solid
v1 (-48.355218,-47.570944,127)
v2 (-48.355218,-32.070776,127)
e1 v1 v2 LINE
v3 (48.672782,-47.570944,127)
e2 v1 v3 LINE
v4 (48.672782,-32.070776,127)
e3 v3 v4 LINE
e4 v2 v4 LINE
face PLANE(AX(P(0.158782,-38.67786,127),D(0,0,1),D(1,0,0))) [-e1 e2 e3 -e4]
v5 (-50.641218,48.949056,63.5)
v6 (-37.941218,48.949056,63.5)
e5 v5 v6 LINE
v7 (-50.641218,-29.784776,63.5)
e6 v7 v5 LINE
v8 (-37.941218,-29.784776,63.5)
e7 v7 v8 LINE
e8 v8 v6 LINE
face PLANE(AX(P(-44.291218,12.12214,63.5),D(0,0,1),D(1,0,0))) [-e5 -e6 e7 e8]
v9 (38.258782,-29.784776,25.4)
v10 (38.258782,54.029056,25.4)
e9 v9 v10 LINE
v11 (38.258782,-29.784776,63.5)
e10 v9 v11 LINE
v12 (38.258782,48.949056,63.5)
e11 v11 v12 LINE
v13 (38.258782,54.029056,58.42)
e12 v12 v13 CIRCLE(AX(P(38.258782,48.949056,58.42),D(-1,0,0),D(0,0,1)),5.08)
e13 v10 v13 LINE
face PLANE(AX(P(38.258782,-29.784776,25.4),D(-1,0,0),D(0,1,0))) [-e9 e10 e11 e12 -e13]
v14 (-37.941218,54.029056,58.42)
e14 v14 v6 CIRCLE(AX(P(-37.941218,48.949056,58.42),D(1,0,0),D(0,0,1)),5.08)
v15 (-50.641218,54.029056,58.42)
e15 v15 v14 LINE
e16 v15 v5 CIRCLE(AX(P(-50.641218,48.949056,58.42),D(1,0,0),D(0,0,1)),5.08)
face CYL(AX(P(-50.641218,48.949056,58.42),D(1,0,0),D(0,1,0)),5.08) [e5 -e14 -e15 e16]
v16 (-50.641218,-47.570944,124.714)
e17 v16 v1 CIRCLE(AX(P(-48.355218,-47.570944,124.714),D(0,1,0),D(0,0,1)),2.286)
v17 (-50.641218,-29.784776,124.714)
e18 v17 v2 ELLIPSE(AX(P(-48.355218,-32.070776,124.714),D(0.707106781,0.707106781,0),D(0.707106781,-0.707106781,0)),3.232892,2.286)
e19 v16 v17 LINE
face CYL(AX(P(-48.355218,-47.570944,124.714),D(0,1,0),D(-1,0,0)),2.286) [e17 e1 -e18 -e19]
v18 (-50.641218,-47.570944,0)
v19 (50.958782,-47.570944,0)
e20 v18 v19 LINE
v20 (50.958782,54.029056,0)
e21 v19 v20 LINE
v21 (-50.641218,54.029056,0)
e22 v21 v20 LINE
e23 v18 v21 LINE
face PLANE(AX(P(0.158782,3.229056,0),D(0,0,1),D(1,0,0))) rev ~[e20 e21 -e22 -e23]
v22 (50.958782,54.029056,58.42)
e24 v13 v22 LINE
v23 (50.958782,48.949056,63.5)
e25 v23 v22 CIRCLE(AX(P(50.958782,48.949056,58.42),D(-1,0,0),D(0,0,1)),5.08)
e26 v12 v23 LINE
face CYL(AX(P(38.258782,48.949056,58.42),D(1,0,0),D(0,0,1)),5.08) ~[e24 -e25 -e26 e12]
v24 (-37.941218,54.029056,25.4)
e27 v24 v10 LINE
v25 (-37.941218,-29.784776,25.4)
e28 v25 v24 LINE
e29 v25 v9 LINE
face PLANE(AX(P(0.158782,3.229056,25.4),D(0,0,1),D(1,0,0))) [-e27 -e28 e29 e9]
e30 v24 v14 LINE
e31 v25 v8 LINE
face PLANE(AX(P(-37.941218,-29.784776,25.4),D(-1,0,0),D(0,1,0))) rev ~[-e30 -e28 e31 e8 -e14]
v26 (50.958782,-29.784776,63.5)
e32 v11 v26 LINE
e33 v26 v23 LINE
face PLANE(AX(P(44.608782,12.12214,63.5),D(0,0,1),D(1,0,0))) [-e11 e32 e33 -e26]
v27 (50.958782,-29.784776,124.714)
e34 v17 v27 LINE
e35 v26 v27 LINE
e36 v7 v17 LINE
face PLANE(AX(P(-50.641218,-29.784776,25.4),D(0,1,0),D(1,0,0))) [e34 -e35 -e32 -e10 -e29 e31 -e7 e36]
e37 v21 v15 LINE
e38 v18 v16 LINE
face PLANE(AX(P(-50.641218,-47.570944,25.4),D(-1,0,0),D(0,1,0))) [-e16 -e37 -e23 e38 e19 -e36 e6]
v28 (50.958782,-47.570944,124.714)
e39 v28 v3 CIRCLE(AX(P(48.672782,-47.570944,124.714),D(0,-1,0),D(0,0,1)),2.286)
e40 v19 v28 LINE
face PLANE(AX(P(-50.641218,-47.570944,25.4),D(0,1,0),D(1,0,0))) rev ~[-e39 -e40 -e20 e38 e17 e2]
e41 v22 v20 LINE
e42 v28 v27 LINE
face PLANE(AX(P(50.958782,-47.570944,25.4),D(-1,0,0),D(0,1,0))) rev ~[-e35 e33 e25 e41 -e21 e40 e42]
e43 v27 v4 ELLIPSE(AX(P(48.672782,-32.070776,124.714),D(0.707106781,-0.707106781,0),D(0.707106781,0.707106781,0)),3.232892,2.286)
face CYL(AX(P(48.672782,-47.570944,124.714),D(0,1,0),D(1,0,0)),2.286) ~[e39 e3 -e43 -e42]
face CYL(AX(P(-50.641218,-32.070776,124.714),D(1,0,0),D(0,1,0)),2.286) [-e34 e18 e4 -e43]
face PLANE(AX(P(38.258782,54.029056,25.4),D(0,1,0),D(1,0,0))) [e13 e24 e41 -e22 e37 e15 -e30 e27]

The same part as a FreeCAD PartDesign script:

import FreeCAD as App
import Part
import Sketcher
from FreeCAD import Vector
Q = App.Units.Quantity


def edges_at(feature, points):
    """Names of the edges that pass closest to the given points."""
    edges = feature.Shape.Edges
    near = lambda p: min(range(len(edges)), key=lambda i: edges[i].distToShape(Part.Vertex(*p))[0])
    return sorted({f"Edge{near(p) + 1}" for p in points})


def add_polygon(sketch, points):
    """Adds a closed chain of lines whose ends are joined by coincident constraints."""
    first, n = sketch.GeometryCount, len(points)
    for a, b in zip(points, points[1:] + points[:1]):
        sketch.addGeometry(Part.LineSegment(App.Vector(*a, 0), App.Vector(*b, 0)), False)
    for i in range(n):
        sketch.addConstraint(Sketcher.Constraint("Coincident", first + i, 2, first + (i + 1) % n, 1))

doc = App.newDocument("Part")
body = doc.addObject("PartDesign::Body", "Body")

# Sketch on XY plane
sketch1 = body.newObject("Sketcher::SketchObject", "Sketch")
sketch1.AttachmentSupport = (doc.getObject("XY_Plane"), [""])
sketch1.MapMode = "FlatFace"
add_polygon(sketch1, [(-51, 54), (-51, -48), (51, -48), (51, 54)])  # lines 0-3
sketch1.addConstraint([
    Sketcher.Constraint("Vertical", 0),
    Sketcher.Constraint("Horizontal", 1),
    Sketcher.Constraint("Vertical", 2),
    Sketcher.Constraint("Horizontal", 3),
    Sketcher.Constraint("Equal", 3, 0),
    Sketcher.Constraint("DistanceX", 1, 1, 1, 2, Q("4 in")),
    Sketcher.Constraint("DistanceX", 0, 2, -1, 1, 50.641218),
    Sketcher.Constraint("DistanceY", 0, 2, -1, 1, 47.570944),
])
pad1 = body.newObject("PartDesign::Pad", "Pad")
pad1.Profile = sketch1
pad1.Length = Q("1 in")

# Sketch on XY plane
sketch2 = body.newObject("Sketcher::SketchObject", "Sketch001")
sketch2.AttachmentSupport = (doc.getObject("XY_Plane"), [""])
sketch2.MapMode = "FlatFace"
sketch2.AttachmentOffset = App.Placement(Vector(0, 0, 1 * 25.4), App.Rotation())
add_polygon(sketch2, [(-51, -30), (-51, -48), (51, -48), (51, -30)])  # lines 0-3
sketch2.addConstraint([
    Sketcher.Constraint("Vertical", 0),
    Sketcher.Constraint("Horizontal", 1),
    Sketcher.Constraint("Vertical", 2),
    Sketcher.Constraint("Horizontal", 3),
    Sketcher.Constraint("DistanceX", 1, 1, 1, 2, Q("4 in")),
    Sketcher.Constraint("DistanceY", 0, 2, 0, 1, 17.786168),
    Sketcher.Constraint("DistanceX", 0, 2, -1, 1, 50.641218),
    Sketcher.Constraint("DistanceY", 0, 2, -1, 1, 47.570944),
])
pad2 = body.newObject("PartDesign::Pad", "Pad001")
pad2.Profile = sketch2
pad2.Length = Q("4 in")

# Sketch on XY plane
sketch3 = body.newObject("Sketcher::SketchObject", "Sketch002")
sketch3.AttachmentSupport = (doc.getObject("XY_Plane"), [""])
sketch3.MapMode = "FlatFace"
sketch3.AttachmentOffset = App.Placement(Vector(0, 0, 1 * 25.4), App.Rotation())
add_polygon(sketch3, [(38, 54), (38, -30), (51, -30), (51, 54)])  # lines 0-3
add_polygon(sketch3, [(-51, 54), (-51, -30), (-38, -30), (-38, 54)])  # lines 4-7
sketch3.addConstraint([
    Sketcher.Constraint("Vertical", 0),
    Sketcher.Constraint("Horizontal", 1),
    Sketcher.Constraint("Vertical", 2),
    Sketcher.Constraint("Horizontal", 3),
    Sketcher.Constraint("Vertical", 4),
    Sketcher.Constraint("Horizontal", 5),
    Sketcher.Constraint("Vertical", 6),
    Sketcher.Constraint("Horizontal", 7),
    Sketcher.Constraint("Horizontal", 1, 2, 4, 2),
    Sketcher.Constraint("Horizontal", 3, 2, 6, 2),
    Sketcher.Constraint("Equal", 3, 5),
    Sketcher.Constraint("DistanceX", 1, 1, 1, 2, Q("0.5 in")),
    Sketcher.Constraint("DistanceX", 4, 2, 1, 2, Q("4 in")),
    Sketcher.Constraint("DistanceY", 0, 2, 0, 1, 83.813832),
    Sketcher.Constraint("DistanceX", -1, 1, 0, 2, 38.258782),
    Sketcher.Constraint("DistanceY", 0, 2, -1, 1, 29.784776),
])
pad3 = body.newObject("PartDesign::Pad", "Pad002")
pad3.Profile = sketch3
pad3.Length = Q("1.5 in")
doc.recompute()

fillet = body.newObject("PartDesign::Fillet", "Fillet")
fillet.Base = (pad3, edges_at(pad3, [(44.609, 54.029, 63.5)]))
fillet.Radius = Q("0.2 in")
doc.recompute()

fillet2 = body.newObject("PartDesign::Fillet", "Fillet001")
fillet2.Base = (fillet, edges_at(fillet, [(-44.291, 54.029, 63.5)]))
fillet2.Radius = Q("0.2 in")
doc.recompute()

fillet3 = body.newObject("PartDesign::Fillet", "Fillet002")
fillet3.Base = (fillet2, edges_at(fillet2, [(0.159, -29.785, 127), (-50.641, -38.678, 127), (50.959, -38.678, 127)]))
fillet3.Radius = Q("0.09 in")

doc.recompute()
